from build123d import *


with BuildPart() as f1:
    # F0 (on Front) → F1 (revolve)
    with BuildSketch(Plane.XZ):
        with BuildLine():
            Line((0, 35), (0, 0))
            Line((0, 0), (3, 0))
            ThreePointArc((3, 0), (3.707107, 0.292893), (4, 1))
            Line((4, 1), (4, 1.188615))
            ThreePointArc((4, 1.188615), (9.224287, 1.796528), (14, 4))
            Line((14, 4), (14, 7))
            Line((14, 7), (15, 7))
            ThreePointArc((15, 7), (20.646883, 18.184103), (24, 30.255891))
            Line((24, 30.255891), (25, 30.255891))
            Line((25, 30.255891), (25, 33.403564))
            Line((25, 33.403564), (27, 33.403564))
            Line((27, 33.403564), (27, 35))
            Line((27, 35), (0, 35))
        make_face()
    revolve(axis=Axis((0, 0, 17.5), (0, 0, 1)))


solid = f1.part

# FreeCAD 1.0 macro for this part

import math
import FreeCAD as App
import Part
import Sketcher

V = App.Vector

doc = App.newDocument("Part")
body = doc.addObject("PartDesign::Body", "Body")

# Sketch on XZ plane
sketch1 = body.newObject("Sketcher::SketchObject", "Sketch")
sketch1.AttachmentSupport = (doc.getObject("XZ_Plane"), [""])
sketch1.MapMode = "FlatFace"
sketch1.addGeometry(Part.LineSegment(V(0, 35, 0), V(0, 0, 0)), False)
sketch1.addGeometry(Part.LineSegment(V(0, 0, 0), V(3, 0, 0)), False)
sketch1.addGeometry(Part.ArcOfCircle(Part.Circle(V(3, 1, 0), V(0, 0, 1), 1), math.radians(-90), math.radians(0)), False)
sketch1.addGeometry(Part.LineSegment(V(4, 1, 0), V(4, 1.19, 0)), False)
sketch1.addGeometry(Part.ArcOfCircle(Part.Circle(V(4.71, 17.86, 0), V(0, 0, 1), 16.69), math.radians(-92), math.radians(-56)), False)
sketch1.addGeometry(Part.LineSegment(V(14, 4, 0), V(14, 7, 0)), False)
sketch1.addGeometry(Part.LineSegment(V(14, 7, 0), V(15, 7, 0)), False)
sketch1.addGeometry(Part.ArcOfCircle(Part.Circle(V(-38.87, 41.22, 0), V(0, 0, 1), 63.82), math.radians(-32), math.radians(-10)), False)
sketch1.addGeometry(Part.LineSegment(V(24, 30.26, 0), V(25, 30.26, 0)), False)
sketch1.addGeometry(Part.LineSegment(V(25, 30.26, 0), V(25, 33.4, 0)), False)
sketch1.addGeometry(Part.LineSegment(V(25, 33.4, 0), V(27, 33.4, 0)), False)
sketch1.addGeometry(Part.LineSegment(V(27, 33.4, 0), V(27, 35, 0)), False)
sketch1.addGeometry(Part.LineSegment(V(27, 35, 0), V(0, 35, 0)), False)
sketch1.addConstraint(Sketcher.Constraint("Coincident", 0, 2, 1, 1))
sketch1.addConstraint(Sketcher.Constraint("Tangent", 1, 2, 2, 1))
sketch1.addConstraint(Sketcher.Constraint("Tangent", 2, 2, 3, 1))
sketch1.addConstraint(Sketcher.Constraint("Coincident", 3, 2, 4, 1))
sketch1.addConstraint(Sketcher.Constraint("Coincident", 4, 2, 5, 1))
sketch1.addConstraint(Sketcher.Constraint("Coincident", 5, 2, 6, 1))
sketch1.addConstraint(Sketcher.Constraint("Coincident", 6, 2, 7, 1))
sketch1.addConstraint(Sketcher.Constraint("Coincident", 7, 2, 8, 1))
sketch1.addConstraint(Sketcher.Constraint("Coincident", 8, 2, 9, 1))
sketch1.addConstraint(Sketcher.Constraint("Coincident", 9, 2, 10, 1))
sketch1.addConstraint(Sketcher.Constraint("Coincident", 10, 2, 11, 1))
sketch1.addConstraint(Sketcher.Constraint("Coincident", 11, 2, 12, 1))
sketch1.addConstraint(Sketcher.Constraint("Coincident", 12, 2, 0, 1))
sketch1.addConstraint(Sketcher.Constraint("Vertical", 0))
sketch1.addConstraint(Sketcher.Constraint("Horizontal", 1))
sketch1.addConstraint(Sketcher.Constraint("Vertical", 3))
sketch1.addConstraint(Sketcher.Constraint("Vertical", 5))
sketch1.addConstraint(Sketcher.Constraint("Horizontal", 6))
sketch1.addConstraint(Sketcher.Constraint("Horizontal", 8))
sketch1.addConstraint(Sketcher.Constraint("Vertical", 9))
sketch1.addConstraint(Sketcher.Constraint("Horizontal", 10))
sketch1.addConstraint(Sketcher.Constraint("Vertical", 11))
sketch1.addConstraint(Sketcher.Constraint("Horizontal", 12))
sketch1.addConstraint(Sketcher.Constraint("Coincident", 0, 2, -1, 1))
sketch1.addConstraint(Sketcher.Constraint("Equal", 6, 8))
sketch1.addConstraint(Sketcher.Constraint("Equal", 1, 5))
sketch1.addConstraint(Sketcher.Constraint("Radius", 2, 0.999999))
sketch1.addConstraint(Sketcher.Constraint("DistanceX", 1, 1, 1, 2, 3.0))
sketch1.addConstraint(Sketcher.Constraint("DistanceX", 6, 1, 6, 2, 1.0))
sketch1.addConstraint(Sketcher.Constraint("DistanceX", 10, 1, 10, 2, 2.0))
sketch1.addConstraint(Sketcher.Constraint("DistanceX", 12, 2, 12, 1, 27.0))
sketch1.addConstraint(Sketcher.Constraint("DistanceY", 0, 2, 0, 1, 35.0))
sketch1.addConstraint(Sketcher.Constraint("DistanceX", -1, 1, 4, 2, 14.0))
sketch1.addConstraint(Sketcher.Constraint("DistanceY", -1, 1, 4, 2, 4.0))
sketch1.addConstraint(Sketcher.Constraint("Radius", 4, 16.690277))
sketch1.addConstraint(Sketcher.Constraint("Radius", 7, 63.821415))
sketch1.addConstraint(Sketcher.Constraint("DistanceY", 3, 1, 3, 2, 0.188615))
sketch1.addConstraint(Sketcher.Constraint("DistanceY", 9, 1, 9, 2, 3.147673))
sketch1.addConstraint(Sketcher.Constraint("DistanceY", 11, 1, 11, 2, 1.596436))
revolution = body.newObject("PartDesign::Revolution", "Revolution")
revolution.Profile = sketch1
revolution.ReferenceAxis = (sketch1, ["V_Axis"])
revolution.Angle = 360

doc.recompute()
